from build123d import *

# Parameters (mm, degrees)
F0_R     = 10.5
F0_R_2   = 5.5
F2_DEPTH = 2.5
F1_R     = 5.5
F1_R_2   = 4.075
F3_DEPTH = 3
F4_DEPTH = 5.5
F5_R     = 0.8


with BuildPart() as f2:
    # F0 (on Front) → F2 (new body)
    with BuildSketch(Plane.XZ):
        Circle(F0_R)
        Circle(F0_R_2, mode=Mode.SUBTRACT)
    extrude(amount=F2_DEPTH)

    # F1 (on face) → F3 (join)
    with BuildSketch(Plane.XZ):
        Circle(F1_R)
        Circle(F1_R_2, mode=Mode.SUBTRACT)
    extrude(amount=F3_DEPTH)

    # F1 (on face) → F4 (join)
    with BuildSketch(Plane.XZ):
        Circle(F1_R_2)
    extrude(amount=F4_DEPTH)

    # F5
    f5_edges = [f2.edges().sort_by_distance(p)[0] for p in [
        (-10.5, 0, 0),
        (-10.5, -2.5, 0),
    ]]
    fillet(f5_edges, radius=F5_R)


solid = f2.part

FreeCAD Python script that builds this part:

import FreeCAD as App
import Part
import Sketcher
from FreeCAD import Vector
Q = App.Units.Quantity


def edges_at(feature, points):
    """Names of the edges that pass closest to the given points."""
    edges = feature.Shape.Edges
    near = lambda p: min(range(len(edges)), key=lambda i: edges[i].distToShape(Part.Vertex(*p))[0])
    return sorted({f"Edge{near(p) + 1}" for p in points})

doc = App.newDocument("Part")
body = doc.addObject("PartDesign::Body", "Body")

# Sketch on XZ plane
sketch1 = body.newObject("Sketcher::SketchObject", "Sketch")
sketch1.AttachmentSupport = (doc.getObject("XZ_Plane"), [""])
sketch1.MapMode = "FlatFace"
sketch1.addGeometry([
    Part.Circle(Vector(0, 0, 0), Vector(0, 0, 1), 10),
    Part.Circle(Vector(0, 0, 0), Vector(0, 0, 1), 6),
], False)
sketch1.addConstraint([
    Sketcher.Constraint("Coincident", 0, 3, -1, 1),
    Sketcher.Constraint("Coincident", 1, 3, -1, 1),
    Sketcher.Constraint("Diameter", 0, Q("21 mm")),
    Sketcher.Constraint("Diameter", 1, Q("11 mm")),
])
pad1 = body.newObject("PartDesign::Pad", "Pad")
pad1.Profile = sketch1
pad1.Length = 2.5

# Sketch on XZ plane
sketch2 = body.newObject("Sketcher::SketchObject", "Sketch001")
sketch2.AttachmentSupport = (doc.getObject("XZ_Plane"), [""])
sketch2.MapMode = "FlatFace"
sketch2.addGeometry([
    Part.Circle(Vector(0, 0, 0), Vector(0, 0, 1), 5.5),
    Part.Circle(Vector(0, 0, 0), Vector(0, 0, 1), 4.1),
], False)
sketch2.addConstraint([
    Sketcher.Constraint("Coincident", 0, 3, -1, 1),
    Sketcher.Constraint("Coincident", 1, 3, -1, 1),
    Sketcher.Constraint("Diameter", 0, Q("11 mm")),
    Sketcher.Constraint("Diameter", 1, Q("8.15 mm")),
])
pad2 = body.newObject("PartDesign::Pad", "Pad001")
pad2.Profile = sketch2
pad2.Length = 3

# Sketch on XZ plane
sketch3 = body.newObject("Sketcher::SketchObject", "Sketch002")
sketch3.AttachmentSupport = (doc.getObject("XZ_Plane"), [""])
sketch3.MapMode = "FlatFace"
sketch3.addGeometry(Part.Circle(Vector(0, 0, 0), Vector(0, 0, 1), 4.1), False)
sketch3.addConstraint([
    Sketcher.Constraint("Coincident", 0, 3, -1, 1),
    Sketcher.Constraint("Diameter", 0, Q("8.15 mm")),
])
pad3 = body.newObject("PartDesign::Pad", "Pad002")
pad3.Profile = sketch3
pad3.Length = 5.5
doc.recompute()

fillet = body.newObject("PartDesign::Fillet", "Fillet")
fillet.Base = (pad3, edges_at(pad3, [(-10.5, 0, 0), (-10.5, -2.5, 0)]))
fillet.Radius = 0.8

doc.recompute()
